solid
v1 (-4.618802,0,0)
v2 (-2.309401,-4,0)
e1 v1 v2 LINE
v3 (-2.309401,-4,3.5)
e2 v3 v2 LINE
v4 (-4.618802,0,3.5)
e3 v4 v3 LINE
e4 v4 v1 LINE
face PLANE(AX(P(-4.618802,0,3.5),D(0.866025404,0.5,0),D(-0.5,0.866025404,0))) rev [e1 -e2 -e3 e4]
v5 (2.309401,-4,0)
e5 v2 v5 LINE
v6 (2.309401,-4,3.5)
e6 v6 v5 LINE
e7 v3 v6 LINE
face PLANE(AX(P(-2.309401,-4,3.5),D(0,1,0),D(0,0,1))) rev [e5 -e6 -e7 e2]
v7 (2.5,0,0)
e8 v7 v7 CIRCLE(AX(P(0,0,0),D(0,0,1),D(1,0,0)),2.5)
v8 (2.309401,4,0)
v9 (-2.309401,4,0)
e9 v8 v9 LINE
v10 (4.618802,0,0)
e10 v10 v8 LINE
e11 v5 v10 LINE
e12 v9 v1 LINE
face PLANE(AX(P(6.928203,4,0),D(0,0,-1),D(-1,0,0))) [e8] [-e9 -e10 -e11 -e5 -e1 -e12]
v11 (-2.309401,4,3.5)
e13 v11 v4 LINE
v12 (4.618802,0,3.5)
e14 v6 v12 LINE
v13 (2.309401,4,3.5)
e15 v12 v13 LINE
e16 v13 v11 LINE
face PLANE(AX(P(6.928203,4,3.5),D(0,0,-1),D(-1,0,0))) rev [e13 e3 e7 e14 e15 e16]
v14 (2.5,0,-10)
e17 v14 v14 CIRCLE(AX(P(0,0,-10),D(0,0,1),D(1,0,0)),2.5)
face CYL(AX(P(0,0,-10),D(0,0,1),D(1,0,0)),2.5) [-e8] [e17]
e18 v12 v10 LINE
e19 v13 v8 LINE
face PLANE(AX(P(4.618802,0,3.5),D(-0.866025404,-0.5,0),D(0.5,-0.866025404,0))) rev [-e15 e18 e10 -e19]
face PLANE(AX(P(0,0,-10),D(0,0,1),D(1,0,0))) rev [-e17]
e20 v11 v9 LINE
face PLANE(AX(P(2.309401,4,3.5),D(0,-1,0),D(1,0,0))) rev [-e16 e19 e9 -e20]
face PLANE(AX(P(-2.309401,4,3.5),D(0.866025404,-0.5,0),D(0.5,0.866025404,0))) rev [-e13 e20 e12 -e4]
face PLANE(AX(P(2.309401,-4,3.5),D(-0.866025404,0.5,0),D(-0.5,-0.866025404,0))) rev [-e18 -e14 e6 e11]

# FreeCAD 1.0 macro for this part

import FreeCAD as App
import Part
import Sketcher

V = App.Vector
Q = App.Units.Quantity


def add_polygon(sketch, points):
    """Adds a closed chain of lines whose ends are joined by coincident constraints."""
    first, n = sketch.GeometryCount, len(points)
    for a, b in zip(points, points[1:] + points[:1]):
        sketch.addGeometry(Part.LineSegment(App.Vector(*a, 0), App.Vector(*b, 0)), False)
    for i in range(n):
        sketch.addConstraint(Sketcher.Constraint("Coincident", first + i, 2, first + (i + 1) % n, 1))

doc = App.newDocument("Part")
body = doc.addObject("PartDesign::Body", "Body")

# Sketch on XY plane
sketch1 = body.newObject("Sketcher::SketchObject", "Sketch")
sketch1.AttachmentSupport = (doc.getObject("XY_Plane"), [""])
sketch1.MapMode = "FlatFace"
sketch1.addGeometry(Part.Circle(V(0, 0, 0), V(0, 0, 1), 2.5), False)
sketch1.addConstraint([
    Sketcher.Constraint("Coincident", 0, 3, -1, 1),
    Sketcher.Constraint("Diameter", 0, 5.0),
])
pad1 = body.newObject("PartDesign::Pad", "Pad")
pad1.Profile = sketch1
pad1.Length = 10
pad1.Reversed = True

# Sketch on XY plane
sketch2 = body.newObject("Sketcher::SketchObject", "Sketch001")
sketch2.AttachmentSupport = (doc.getObject("XY_Plane"), [""])
sketch2.MapMode = "FlatFace"
add_polygon(sketch2, [(-2.3, 4), (-4.6, 0), (-2.3, -4), (2.3, -4), (4.6, 0), (2.3, 4)])  # lines 0-5
sketch2.addConstraint([
    Sketcher.Constraint("Horizontal", 2),
    Sketcher.Constraint("Horizontal", 5),
    Sketcher.Constraint("Symmetric", 0, 2, 3, 2, -1, 1),
    Sketcher.Constraint("Symmetric", 1, 2, 4, 2, -1, 1),
    Sketcher.Constraint("PointOnObject", 0, 2, -1),
    Sketcher.Constraint("Parallel", 0, 3),
    Sketcher.Constraint("Vertical", 2, 2, 4, 2),
    Sketcher.Constraint("Angle", 0, Q("-120 deg")),
    Sketcher.Constraint("DistanceY", 1, 2, -1, 1, 4.0),
    Sketcher.Constraint("DistanceX", 1, 2, -1, 1, 2.309401),
])
pad2 = body.newObject("PartDesign::Pad", "Pad001")
pad2.Profile = sketch2
pad2.Length = 3.5

doc.recompute()
